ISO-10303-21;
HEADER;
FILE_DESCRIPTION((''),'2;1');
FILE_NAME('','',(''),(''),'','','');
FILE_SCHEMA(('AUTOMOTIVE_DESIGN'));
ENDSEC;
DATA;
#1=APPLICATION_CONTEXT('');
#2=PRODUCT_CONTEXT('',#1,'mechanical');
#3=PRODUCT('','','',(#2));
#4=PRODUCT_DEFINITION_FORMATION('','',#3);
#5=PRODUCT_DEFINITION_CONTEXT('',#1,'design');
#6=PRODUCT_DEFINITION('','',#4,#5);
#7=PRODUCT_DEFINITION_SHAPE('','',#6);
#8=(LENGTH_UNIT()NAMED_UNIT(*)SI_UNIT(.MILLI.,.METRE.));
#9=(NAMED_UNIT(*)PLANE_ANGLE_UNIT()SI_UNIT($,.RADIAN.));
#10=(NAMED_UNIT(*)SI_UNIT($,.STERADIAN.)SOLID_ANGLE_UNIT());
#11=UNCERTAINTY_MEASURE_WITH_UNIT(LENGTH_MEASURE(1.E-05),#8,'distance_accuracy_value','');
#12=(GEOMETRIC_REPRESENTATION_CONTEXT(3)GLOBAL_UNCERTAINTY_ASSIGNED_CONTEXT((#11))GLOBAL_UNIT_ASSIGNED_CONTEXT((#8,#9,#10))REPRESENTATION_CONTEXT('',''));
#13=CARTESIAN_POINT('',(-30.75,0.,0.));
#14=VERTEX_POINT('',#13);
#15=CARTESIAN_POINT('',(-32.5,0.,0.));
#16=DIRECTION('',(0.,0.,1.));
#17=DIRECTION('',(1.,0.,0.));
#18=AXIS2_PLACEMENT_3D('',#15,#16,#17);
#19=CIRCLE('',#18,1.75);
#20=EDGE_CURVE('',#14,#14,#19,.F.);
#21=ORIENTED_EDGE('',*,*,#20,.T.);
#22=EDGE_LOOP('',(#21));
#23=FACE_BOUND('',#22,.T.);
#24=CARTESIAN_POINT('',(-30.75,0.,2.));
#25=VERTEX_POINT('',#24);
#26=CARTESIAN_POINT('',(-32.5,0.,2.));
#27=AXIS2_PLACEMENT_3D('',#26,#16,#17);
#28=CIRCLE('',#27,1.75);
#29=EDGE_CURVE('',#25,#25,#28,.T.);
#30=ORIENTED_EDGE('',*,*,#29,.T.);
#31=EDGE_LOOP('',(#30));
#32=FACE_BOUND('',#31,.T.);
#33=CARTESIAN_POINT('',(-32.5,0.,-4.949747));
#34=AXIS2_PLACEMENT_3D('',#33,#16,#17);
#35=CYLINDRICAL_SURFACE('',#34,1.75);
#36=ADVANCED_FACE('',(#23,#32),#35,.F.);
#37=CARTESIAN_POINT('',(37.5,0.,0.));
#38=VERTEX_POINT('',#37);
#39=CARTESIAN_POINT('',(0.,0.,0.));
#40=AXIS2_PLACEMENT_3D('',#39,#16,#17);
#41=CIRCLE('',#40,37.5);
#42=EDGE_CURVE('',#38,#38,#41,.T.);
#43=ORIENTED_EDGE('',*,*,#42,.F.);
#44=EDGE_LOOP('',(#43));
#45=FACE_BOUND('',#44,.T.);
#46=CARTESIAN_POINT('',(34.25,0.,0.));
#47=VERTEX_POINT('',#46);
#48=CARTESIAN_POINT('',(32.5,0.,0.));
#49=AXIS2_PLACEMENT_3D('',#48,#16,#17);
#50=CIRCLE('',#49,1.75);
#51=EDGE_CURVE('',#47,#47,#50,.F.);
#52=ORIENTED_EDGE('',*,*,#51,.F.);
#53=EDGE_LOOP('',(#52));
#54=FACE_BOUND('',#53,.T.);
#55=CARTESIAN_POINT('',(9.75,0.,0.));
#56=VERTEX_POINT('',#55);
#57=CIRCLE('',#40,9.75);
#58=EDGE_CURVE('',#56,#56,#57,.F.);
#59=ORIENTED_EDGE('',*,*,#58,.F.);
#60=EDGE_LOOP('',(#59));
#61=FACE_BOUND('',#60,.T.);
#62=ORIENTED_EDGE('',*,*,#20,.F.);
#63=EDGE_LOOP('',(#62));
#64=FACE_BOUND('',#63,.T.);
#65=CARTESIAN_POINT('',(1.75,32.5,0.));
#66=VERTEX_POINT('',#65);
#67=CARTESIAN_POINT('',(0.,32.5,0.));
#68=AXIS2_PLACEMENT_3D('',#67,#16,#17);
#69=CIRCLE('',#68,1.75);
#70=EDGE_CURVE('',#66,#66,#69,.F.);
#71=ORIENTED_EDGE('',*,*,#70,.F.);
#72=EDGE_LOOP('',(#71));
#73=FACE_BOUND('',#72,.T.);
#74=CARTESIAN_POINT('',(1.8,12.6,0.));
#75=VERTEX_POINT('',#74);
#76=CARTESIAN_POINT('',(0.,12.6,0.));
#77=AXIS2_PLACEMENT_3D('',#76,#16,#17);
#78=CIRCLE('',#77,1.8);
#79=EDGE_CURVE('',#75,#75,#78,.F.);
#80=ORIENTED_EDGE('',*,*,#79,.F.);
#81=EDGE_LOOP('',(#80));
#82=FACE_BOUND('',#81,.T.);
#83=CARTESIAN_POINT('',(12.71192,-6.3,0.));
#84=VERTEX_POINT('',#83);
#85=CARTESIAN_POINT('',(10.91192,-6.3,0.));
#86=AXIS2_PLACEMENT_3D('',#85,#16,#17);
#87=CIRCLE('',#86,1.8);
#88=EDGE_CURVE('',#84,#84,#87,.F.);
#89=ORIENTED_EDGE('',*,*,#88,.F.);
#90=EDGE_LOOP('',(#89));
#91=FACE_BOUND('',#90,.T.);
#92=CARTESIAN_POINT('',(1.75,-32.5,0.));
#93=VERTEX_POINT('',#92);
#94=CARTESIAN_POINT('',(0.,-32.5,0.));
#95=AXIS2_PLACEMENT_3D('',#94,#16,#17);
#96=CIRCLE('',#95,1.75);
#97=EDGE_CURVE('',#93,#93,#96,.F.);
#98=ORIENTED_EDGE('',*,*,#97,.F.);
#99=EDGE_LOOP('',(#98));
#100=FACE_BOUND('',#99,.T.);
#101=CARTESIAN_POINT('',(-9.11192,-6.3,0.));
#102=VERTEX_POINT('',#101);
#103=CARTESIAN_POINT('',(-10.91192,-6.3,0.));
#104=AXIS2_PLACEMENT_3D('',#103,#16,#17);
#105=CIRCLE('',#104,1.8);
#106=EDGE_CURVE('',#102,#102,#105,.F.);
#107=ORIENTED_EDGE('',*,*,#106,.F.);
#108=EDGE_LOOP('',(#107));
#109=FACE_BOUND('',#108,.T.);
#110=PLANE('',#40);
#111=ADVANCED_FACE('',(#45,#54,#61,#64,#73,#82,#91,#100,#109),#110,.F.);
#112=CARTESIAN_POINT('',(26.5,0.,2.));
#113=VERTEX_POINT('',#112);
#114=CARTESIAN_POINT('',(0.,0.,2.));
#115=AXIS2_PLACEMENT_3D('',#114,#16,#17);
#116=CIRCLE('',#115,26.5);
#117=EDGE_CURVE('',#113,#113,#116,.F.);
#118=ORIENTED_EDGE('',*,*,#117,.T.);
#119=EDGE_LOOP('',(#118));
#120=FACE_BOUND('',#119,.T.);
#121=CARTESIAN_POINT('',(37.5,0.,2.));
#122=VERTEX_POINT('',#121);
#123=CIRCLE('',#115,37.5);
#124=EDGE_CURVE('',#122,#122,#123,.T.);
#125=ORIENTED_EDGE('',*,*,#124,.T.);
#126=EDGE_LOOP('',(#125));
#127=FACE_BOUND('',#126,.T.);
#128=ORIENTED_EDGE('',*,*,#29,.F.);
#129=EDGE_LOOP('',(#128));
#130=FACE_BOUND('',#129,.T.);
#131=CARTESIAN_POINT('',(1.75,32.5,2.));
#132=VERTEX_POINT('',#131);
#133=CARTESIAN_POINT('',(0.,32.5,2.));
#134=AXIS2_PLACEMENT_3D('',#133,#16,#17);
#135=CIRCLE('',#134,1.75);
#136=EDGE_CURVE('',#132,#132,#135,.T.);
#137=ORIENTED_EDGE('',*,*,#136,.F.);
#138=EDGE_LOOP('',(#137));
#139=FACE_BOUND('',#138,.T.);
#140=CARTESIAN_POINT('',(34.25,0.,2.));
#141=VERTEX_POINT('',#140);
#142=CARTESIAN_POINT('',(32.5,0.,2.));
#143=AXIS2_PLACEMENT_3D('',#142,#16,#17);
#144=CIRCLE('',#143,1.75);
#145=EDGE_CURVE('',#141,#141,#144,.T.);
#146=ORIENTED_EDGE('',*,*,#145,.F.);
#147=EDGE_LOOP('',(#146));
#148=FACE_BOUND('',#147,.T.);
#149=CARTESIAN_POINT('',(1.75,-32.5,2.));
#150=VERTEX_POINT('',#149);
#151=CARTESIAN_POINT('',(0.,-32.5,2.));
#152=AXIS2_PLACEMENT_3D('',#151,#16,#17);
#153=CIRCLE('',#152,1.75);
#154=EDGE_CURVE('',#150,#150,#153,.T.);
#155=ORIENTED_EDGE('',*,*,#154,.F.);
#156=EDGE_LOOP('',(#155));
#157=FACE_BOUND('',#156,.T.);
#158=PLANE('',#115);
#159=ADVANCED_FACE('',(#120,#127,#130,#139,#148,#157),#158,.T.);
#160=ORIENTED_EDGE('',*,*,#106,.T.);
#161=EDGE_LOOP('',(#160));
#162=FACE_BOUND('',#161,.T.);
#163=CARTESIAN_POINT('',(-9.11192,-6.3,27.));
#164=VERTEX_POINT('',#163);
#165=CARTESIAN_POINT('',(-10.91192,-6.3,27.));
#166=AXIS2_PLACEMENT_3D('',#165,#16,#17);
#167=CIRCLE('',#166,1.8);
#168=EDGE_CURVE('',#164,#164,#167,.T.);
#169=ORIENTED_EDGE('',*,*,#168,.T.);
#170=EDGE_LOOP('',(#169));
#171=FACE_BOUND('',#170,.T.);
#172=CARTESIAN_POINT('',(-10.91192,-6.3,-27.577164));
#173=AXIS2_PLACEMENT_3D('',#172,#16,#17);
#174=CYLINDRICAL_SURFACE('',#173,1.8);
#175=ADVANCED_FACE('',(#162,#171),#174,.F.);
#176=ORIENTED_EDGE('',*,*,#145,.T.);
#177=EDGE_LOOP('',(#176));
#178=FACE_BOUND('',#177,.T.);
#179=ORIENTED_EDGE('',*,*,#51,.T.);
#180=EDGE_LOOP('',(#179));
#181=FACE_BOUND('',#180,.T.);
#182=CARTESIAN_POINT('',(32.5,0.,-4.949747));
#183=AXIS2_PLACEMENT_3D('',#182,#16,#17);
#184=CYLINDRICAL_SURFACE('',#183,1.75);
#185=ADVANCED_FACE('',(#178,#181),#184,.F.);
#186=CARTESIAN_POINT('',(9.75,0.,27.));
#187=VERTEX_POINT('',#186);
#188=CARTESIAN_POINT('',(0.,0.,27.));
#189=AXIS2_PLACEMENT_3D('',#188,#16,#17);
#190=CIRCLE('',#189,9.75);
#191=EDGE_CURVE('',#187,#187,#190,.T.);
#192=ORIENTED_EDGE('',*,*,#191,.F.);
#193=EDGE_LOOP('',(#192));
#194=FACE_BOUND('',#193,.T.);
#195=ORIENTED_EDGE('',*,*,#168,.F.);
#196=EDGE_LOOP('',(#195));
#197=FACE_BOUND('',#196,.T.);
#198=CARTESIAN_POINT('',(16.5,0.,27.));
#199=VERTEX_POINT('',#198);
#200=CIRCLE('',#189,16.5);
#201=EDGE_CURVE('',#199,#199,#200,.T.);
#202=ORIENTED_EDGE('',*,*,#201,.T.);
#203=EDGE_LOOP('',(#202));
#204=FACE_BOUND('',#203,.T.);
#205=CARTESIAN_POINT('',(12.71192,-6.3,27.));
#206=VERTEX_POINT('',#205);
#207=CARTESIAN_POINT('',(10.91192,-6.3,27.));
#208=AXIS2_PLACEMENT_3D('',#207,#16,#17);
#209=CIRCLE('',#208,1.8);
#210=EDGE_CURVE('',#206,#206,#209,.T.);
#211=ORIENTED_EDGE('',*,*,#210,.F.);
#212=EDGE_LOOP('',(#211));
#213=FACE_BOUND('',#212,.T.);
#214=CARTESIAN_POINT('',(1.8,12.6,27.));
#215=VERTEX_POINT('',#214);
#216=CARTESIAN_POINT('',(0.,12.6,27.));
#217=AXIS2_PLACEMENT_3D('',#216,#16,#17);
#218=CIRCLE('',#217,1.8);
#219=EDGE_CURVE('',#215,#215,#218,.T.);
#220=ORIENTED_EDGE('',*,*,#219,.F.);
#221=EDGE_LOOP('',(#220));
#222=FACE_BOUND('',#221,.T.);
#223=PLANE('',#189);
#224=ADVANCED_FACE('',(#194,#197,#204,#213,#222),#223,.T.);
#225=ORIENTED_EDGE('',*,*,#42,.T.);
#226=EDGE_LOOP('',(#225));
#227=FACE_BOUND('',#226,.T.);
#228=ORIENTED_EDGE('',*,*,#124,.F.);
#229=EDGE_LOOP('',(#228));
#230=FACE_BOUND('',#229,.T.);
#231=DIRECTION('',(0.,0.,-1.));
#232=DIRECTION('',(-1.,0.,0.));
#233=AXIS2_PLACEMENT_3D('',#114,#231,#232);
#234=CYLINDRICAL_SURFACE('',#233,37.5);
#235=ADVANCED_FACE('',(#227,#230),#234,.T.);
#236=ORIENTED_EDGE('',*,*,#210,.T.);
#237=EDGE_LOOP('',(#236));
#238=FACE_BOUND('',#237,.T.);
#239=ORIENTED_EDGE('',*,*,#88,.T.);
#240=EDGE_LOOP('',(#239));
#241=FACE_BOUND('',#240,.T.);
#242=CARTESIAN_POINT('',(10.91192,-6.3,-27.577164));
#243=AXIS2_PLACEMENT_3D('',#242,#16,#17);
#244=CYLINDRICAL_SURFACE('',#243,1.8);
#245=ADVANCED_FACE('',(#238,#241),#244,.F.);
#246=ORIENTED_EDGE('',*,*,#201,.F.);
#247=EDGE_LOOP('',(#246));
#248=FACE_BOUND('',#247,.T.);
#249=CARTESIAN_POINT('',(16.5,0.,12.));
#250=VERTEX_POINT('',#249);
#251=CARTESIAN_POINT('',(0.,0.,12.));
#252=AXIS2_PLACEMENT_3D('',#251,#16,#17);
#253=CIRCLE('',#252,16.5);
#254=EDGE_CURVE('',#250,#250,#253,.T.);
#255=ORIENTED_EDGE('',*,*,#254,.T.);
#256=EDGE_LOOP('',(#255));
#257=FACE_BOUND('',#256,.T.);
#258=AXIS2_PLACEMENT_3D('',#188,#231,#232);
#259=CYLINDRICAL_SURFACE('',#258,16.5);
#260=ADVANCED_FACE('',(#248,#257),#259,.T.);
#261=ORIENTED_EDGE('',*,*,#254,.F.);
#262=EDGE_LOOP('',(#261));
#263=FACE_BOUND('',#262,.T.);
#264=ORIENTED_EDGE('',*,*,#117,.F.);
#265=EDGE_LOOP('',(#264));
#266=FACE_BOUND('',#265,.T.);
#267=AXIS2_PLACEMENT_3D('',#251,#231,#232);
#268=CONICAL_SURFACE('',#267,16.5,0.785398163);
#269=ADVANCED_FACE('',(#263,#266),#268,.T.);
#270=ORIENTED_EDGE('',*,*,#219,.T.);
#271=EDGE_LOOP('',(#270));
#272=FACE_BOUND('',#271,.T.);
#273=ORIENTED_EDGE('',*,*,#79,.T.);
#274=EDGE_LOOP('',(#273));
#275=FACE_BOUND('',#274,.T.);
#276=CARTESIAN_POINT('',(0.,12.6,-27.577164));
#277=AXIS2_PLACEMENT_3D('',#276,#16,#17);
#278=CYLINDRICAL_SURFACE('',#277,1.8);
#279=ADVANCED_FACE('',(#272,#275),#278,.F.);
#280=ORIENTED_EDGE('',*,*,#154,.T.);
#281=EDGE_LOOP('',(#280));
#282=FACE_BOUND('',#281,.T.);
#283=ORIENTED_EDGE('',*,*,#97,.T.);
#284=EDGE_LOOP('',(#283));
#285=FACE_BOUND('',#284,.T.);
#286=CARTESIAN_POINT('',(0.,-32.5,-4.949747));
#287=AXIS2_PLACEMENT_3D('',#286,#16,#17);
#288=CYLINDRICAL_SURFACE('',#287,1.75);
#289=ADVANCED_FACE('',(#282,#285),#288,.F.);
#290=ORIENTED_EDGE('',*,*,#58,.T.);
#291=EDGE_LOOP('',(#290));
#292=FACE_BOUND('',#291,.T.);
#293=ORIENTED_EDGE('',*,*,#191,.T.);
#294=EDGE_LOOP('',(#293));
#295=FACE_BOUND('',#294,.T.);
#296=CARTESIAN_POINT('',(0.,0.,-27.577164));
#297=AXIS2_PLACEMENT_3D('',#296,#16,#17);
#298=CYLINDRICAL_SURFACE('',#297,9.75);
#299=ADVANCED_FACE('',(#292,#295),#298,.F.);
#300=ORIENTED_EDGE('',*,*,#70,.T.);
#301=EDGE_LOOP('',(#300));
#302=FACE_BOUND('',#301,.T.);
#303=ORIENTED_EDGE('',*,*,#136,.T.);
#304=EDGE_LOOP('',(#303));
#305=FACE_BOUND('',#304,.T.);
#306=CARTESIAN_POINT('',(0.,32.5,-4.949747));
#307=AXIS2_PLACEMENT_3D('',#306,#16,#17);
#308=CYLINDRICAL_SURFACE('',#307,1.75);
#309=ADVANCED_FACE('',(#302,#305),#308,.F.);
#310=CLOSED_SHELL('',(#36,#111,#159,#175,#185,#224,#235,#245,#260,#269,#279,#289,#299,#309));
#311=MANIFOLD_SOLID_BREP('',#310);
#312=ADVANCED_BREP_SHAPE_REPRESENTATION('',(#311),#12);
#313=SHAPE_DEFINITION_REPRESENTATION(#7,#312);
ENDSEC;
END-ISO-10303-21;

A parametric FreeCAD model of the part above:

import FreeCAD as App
import Part
import Sketcher
from FreeCAD import Vector
Q = App.Units.Quantity


def edges_at(feature, points):
    """Names of the edges that pass closest to the given points."""
    edges = feature.Shape.Edges
    near = lambda p: min(range(len(edges)), key=lambda i: edges[i].distToShape(Part.Vertex(*p))[0])
    return sorted({f"Edge{near(p) + 1}" for p in points})

doc = App.newDocument("Part")
body = doc.addObject("PartDesign::Body", "Body")

# Sketch on XY plane
sketch1 = body.newObject("Sketcher::SketchObject", "Sketch")
sketch1.AttachmentSupport = (doc.getObject("XY_Plane"), [""])
sketch1.MapMode = "FlatFace"
sketch1.addGeometry(Part.Circle(Vector(0, 0, 0), Vector(0, 0, 1), 38), False)
sketch1.addConstraint([
    Sketcher.Constraint("Coincident", 0, 3, -1, 1),
    Sketcher.Constraint("Diameter", 0, Q("75 mm")),
])
pad1 = body.newObject("PartDesign::Pad", "Pad")
pad1.Profile = sketch1
pad1.Length = 2

# Sketch on XY plane
sketch2 = body.newObject("Sketcher::SketchObject", "Sketch001")
sketch2.AttachmentSupport = (doc.getObject("XY_Plane"), [""])
sketch2.MapMode = "FlatFace"
sketch2.AttachmentOffset = App.Placement(Vector(0, 0, 2), App.Rotation())
sketch2.addGeometry([
    Part.Circle(Vector(0, 32.5, 0), Vector(0, 0, 1), 1.8),
    Part.Circle(Vector(32.5, 0, 0), Vector(0, 0, 1), 1.8),
    Part.Circle(Vector(0, -32.5, 0), Vector(0, 0, 1), 1.8),
    Part.Circle(Vector(-32.5, 0, 0), Vector(0, 0, 1), 1.8),
], False)
sketch2.addConstraint([
    Sketcher.Constraint("Equal", 0, 1),
    Sketcher.Constraint("Equal", 1, 2),
    Sketcher.Constraint("Equal", 2, 3),
    Sketcher.Constraint("Symmetric", 0, 3, 2, 3, -1, 1),
    Sketcher.Constraint("Symmetric", 1, 3, 3, 3, -1, 1),
    Sketcher.Constraint("PointOnObject", 0, 3, -2),
    Sketcher.Constraint("PointOnObject", 1, 3, -1),
    Sketcher.Constraint("Diameter", 0, Q("3.5 mm")),
    Sketcher.Constraint("DistanceY", 2, 3, 0, 3, Q("65 mm")),
    Sketcher.Constraint("DistanceX", 3, 3, 1, 3, Q("65 mm")),
])
pocket1 = body.newObject("PartDesign::Pocket", "Pocket")
pocket1.Profile = sketch2
pocket1.Length = 2

# Sketch on XY plane
sketch3 = body.newObject("Sketcher::SketchObject", "Sketch002")
sketch3.AttachmentSupport = (doc.getObject("XY_Plane"), [""])
sketch3.MapMode = "FlatFace"
sketch3.AttachmentOffset = App.Placement(Vector(0, 0, 2), App.Rotation())
sketch3.addGeometry(Part.Circle(Vector(0, 0, 0), Vector(0, 0, 1), 16), False)
sketch3.addConstraint([
    Sketcher.Constraint("Coincident", 0, 3, -1, 1),
    Sketcher.Constraint("Diameter", 0, Q("33 mm")),
])
pad2 = body.newObject("PartDesign::Pad", "Pad001")
pad2.Profile = sketch3
pad2.Length = 25

# Sketch on XY plane
sketch4 = body.newObject("Sketcher::SketchObject", "Sketch003")
sketch4.AttachmentSupport = (doc.getObject("XY_Plane"), [""])
sketch4.MapMode = "FlatFace"
sketch4.AttachmentOffset = App.Placement(Vector(0, 0, 27), App.Rotation())
sketch4.addGeometry([
    Part.Circle(Vector(0, 0, 0), Vector(0, 0, 1), 9.8),
    Part.Circle(Vector(0, 12.6, 0), Vector(0, 0, 1), 1.8),
    Part.Circle(Vector(10.9, -6.3, 0), Vector(0, 0, 1), 1.8),
    Part.Circle(Vector(-10.9, -6.3, 0), Vector(0, 0, 1), 1.8),
], False)
sketch4.addConstraint([
    Sketcher.Constraint("Coincident", 0, 3, -1, 1),
    Sketcher.Constraint("Equal", 1, 2),
    Sketcher.Constraint("Equal", 2, 3),
    Sketcher.Constraint("Symmetric", 2, 3, 3, 3, -2),
    Sketcher.Constraint("PointOnObject", 1, 3, -2),
    Sketcher.Constraint("Diameter", 0, Q("19.5 mm")),
    Sketcher.Constraint("Diameter", 1, Q("3.6 mm")),
    Sketcher.Constraint("DistanceY", -1, 1, 1, 3, Q("12.6 mm")),
    Sketcher.Constraint("DistanceY", 2, 3, -1, 1, Q("6.3 mm")),
    Sketcher.Constraint("DistanceX", -1, 1, 2, 3, Q("10.91192 mm")),
])
pocket2 = body.newObject("PartDesign::Pocket", "Pocket001")
pocket2.Profile = sketch4
pocket2.Length = 27
doc.recompute()

chamfer = body.newObject("PartDesign::Chamfer", "Chamfer")
chamfer.Base = (pocket2, edges_at(pocket2, [(-16.5, 0, 2)]))
chamfer.Size = 10

doc.recompute()
